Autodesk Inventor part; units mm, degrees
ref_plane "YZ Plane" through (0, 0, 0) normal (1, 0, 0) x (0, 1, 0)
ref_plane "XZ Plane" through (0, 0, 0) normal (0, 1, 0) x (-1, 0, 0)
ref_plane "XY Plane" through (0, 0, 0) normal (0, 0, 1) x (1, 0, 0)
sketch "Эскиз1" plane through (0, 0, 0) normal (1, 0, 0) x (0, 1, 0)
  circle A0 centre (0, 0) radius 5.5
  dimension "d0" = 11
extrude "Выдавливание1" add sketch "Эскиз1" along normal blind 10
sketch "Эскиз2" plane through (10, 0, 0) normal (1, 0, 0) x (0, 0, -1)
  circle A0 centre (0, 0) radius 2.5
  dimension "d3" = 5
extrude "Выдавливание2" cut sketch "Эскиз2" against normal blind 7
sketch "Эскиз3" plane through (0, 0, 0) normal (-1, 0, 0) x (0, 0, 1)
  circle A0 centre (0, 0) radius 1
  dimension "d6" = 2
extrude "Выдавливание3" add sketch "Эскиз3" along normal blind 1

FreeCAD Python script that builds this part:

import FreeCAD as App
import Part
import Sketcher
Q = App.Units.Quantity

doc = App.newDocument("Part")
body = doc.addObject("PartDesign::Body", "Body")

# Sketch on YZ plane
sketch1 = body.newObject("Sketcher::SketchObject", "Sketch")
sketch1.AttachmentSupport = (doc.getObject("YZ_Plane"), [""])
sketch1.MapMode = "FlatFace"
sketch1.addGeometry(Part.Circle(App.Vector(0, 0, 0), App.Vector(0, 0, 1), 6), False)
sketch1.addConstraint([
    Sketcher.Constraint("Coincident", 0, 3, -1, 1),
    Sketcher.Constraint("Diameter", 0, Q("11 mm")),
])
pad1 = body.newObject("PartDesign::Pad", "Pad")
pad1.Profile = sketch1
pad1.Length = 10

# Sketch on YZ plane
sketch2 = body.newObject("Sketcher::SketchObject", "Sketch001")
sketch2.AttachmentSupport = (doc.getObject("YZ_Plane"), [""])
sketch2.MapMode = "FlatFace"
sketch2.AttachmentOffset = App.Placement(App.Vector(0, 0, 10), App.Rotation())
sketch2.addGeometry(Part.Circle(App.Vector(0, 0, 0), App.Vector(0, 0, 1), 2.5), False)
sketch2.addConstraint([
    Sketcher.Constraint("Coincident", 0, 3, -1, 1),
    Sketcher.Constraint("Diameter", 0, Q("5 mm")),
])
pocket1 = body.newObject("PartDesign::Pocket", "Pocket")
pocket1.Profile = sketch2
pocket1.Length = 7

# Sketch on YZ plane
sketch3 = body.newObject("Sketcher::SketchObject", "Sketch002")
sketch3.AttachmentSupport = (doc.getObject("YZ_Plane"), [""])
sketch3.MapMode = "FlatFace"
sketch3.addGeometry(Part.Circle(App.Vector(0, 0, 0), App.Vector(0, 0, 1), 1), False)
sketch3.addConstraint([
    Sketcher.Constraint("Coincident", 0, 3, -1, 1),
    Sketcher.Constraint("Diameter", 0, Q("2 mm")),
])
pad2 = body.newObject("PartDesign::Pad", "Pad001")
pad2.Profile = sketch3
pad2.Length = 1
pad2.Reversed = True

doc.recompute()
